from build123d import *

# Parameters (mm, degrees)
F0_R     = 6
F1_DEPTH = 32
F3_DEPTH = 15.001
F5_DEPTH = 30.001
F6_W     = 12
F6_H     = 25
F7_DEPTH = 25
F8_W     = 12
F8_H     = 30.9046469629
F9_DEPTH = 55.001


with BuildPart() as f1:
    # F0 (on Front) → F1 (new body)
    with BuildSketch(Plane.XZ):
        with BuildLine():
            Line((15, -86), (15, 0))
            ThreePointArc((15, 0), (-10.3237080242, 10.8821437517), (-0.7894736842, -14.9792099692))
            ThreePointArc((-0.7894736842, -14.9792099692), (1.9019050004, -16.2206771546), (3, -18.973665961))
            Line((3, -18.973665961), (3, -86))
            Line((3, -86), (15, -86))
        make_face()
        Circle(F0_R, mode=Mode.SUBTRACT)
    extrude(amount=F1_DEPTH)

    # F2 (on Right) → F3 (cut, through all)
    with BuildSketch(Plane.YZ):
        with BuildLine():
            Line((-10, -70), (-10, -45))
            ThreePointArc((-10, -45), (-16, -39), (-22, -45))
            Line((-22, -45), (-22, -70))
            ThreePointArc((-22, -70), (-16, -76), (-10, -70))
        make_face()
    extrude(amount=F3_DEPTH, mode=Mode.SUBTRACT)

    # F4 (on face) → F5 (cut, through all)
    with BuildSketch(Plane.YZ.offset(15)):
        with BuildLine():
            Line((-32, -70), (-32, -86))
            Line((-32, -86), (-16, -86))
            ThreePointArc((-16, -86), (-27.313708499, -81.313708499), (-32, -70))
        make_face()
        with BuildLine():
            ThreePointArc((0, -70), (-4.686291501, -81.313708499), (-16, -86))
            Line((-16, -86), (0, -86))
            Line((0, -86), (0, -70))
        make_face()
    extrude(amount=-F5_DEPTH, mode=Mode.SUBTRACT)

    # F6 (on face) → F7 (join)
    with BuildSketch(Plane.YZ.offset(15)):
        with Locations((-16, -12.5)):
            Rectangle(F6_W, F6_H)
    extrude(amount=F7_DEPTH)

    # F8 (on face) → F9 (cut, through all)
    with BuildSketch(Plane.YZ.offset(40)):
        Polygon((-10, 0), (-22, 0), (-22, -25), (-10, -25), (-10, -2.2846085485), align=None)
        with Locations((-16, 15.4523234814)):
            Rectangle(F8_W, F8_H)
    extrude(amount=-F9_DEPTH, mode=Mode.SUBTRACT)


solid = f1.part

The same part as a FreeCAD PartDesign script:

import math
import FreeCAD as App
import Part
import Sketcher
Q = App.Units.Quantity

doc = App.newDocument("Part")
params = doc.addObject("Spreadsheet::Sheet", "Params")
for row, (alias, value) in enumerate([
    ("sketch1_diameter", "12 mm"),
    ("sketch1_radius", "15 mm"),
    ("sketch1_radius2", "4 mm"),
    ("sketch1_width", "12 mm"),
    ("sketch1_height", "86 mm"),
    ("pad1_length", "32 mm"),
    ("sketch2_radius", "6 mm"),
    ("sketch2_height", "25 mm"),
    ("sketch3_radius", "16 mm"),
    ("sketch4_width", "12 mm"),
    ("sketch4_height", "25 mm"),
    ("pad2_length", "25 mm"),
    ("sketch5_width", "12 mm"),
], start=1):
    params.set(f"A{row}", alias)
    params.set(f"B{row}", "=" + value)
    params.setAlias(f"B{row}", alias)

body = doc.addObject("PartDesign::Body", "Body")

# Sketch on XZ plane
sketch1 = doc.addObject("Sketcher::SketchObject", "Sketch")
body.addObject(sketch1)
sketch1.AttachmentSupport = (doc.XZ_Plane, [""])
sketch1.MapMode = "FlatFace"
sketch1.addGeometry([
    Part.LineSegment(App.Vector(15, -86, 0), App.Vector(15, 0, 0)),  # 0
    Part.ArcOfCircle(Part.Circle(App.Vector(0, 0, 0), App.Vector(0, 0, 1), 15), math.radians(0), math.radians(267)),  # 1
    Part.ArcOfCircle(Part.Circle(App.Vector(-1, -19, 0), App.Vector(0, 0, 1), 4), math.radians(0), math.radians(87)),  # 2
    Part.LineSegment(App.Vector(3, -19, 0), App.Vector(3, -86, 0)),  # 3
    Part.LineSegment(App.Vector(3, -86, 0), App.Vector(15, -86, 0)),  # 4
    Part.Circle(App.Vector(0, 0, 0), App.Vector(0, 0, 1), 6),  # 5
], False)
sketch1.addConstraint([
    Sketcher.Constraint("Tangent", 0, 2, 1, 1),
    Sketcher.Constraint("Tangent", 1, 2, 2, 2),
    Sketcher.Constraint("Tangent", 2, 1, 3, 1),
    Sketcher.Constraint("Coincident", 3, 2, 4, 1),
    Sketcher.Constraint("Coincident", 4, 2, 0, 1),
    Sketcher.Constraint("Vertical", 0),
    Sketcher.Constraint("Vertical", 3),
    Sketcher.Constraint("Horizontal", 4),
    Sketcher.Constraint("Coincident", 1, 3, -1, 1),
    Sketcher.Constraint("Coincident", 5, 3, -1, 1),
    Sketcher.Constraint("Diameter", 5, Q("12 mm")),
    Sketcher.Constraint("Radius", 1, Q("15 mm")),
    Sketcher.Constraint("Radius", 2, Q("4 mm")),
    Sketcher.Constraint("DistanceX", 4, 1, 4, 2, Q("12 mm")),
    Sketcher.Constraint("DistanceY", 0, 1, 0, 2, Q("86 mm")),
])
sketch1.setExpression("Constraints[10]", "Params.sketch1_diameter")
sketch1.setExpression("Constraints[11]", "Params.sketch1_radius")
sketch1.setExpression("Constraints[12]", "Params.sketch1_radius2")
sketch1.setExpression("Constraints[13]", "Params.sketch1_width")
sketch1.setExpression("Constraints[14]", "Params.sketch1_height")
pad1 = doc.addObject("PartDesign::Pad", "Pad")
body.addObject(pad1)
pad1.Profile = sketch1
pad1.setExpression("Length", "Params.pad1_length")

# Sketch on YZ plane
sketch2 = doc.addObject("Sketcher::SketchObject", "Sketch001")
body.addObject(sketch2)
sketch2.AttachmentSupport = (doc.YZ_Plane, [""])
sketch2.MapMode = "FlatFace"
sketch2.addGeometry([
    Part.LineSegment(App.Vector(-10, -70, 0), App.Vector(-10, -45, 0)),
    Part.ArcOfCircle(Part.Circle(App.Vector(-16, -45, 0), App.Vector(0, 0, 1), 6), math.radians(0), math.radians(180)),
    Part.LineSegment(App.Vector(-22, -45, 0), App.Vector(-22, -70, 0)),
    Part.ArcOfCircle(Part.Circle(App.Vector(-16, -70, 0), App.Vector(0, 0, 1), 6), math.radians(180), math.radians(360)),
], False)
sketch2.addConstraint([
    Sketcher.Constraint("Tangent", 0, 2, 1, 1),
    Sketcher.Constraint("Tangent", 1, 2, 2, 1),
    Sketcher.Constraint("Tangent", 2, 2, 3, 1),
    Sketcher.Constraint("Tangent", 3, 2, 0, 1),
    Sketcher.Constraint("Vertical", 0),
    Sketcher.Constraint("Vertical", 2),
    Sketcher.Constraint("Radius", 1, Q("6 mm")),
    Sketcher.Constraint("DistanceY", 0, 1, 0, 2, Q("25 mm")),
    Sketcher.Constraint("DistanceX", 1, 3, -1, 1, Q("16 mm")),
    Sketcher.Constraint("DistanceY", 1, 3, -1, 1, Q("45 mm")),
])
sketch2.setExpression("Constraints[6]", "Params.sketch2_radius")
sketch2.setExpression("Constraints[7]", "Params.sketch2_height")
pocket1 = doc.addObject("PartDesign::Pocket", "Pocket")
body.addObject(pocket1)
pocket1.Profile = sketch2
pocket1.Type = "ThroughAll"
pocket1.Reversed = True

# Sketch on YZ plane
sketch3 = doc.addObject("Sketcher::SketchObject", "Sketch002")
body.addObject(sketch3)
sketch3.AttachmentSupport = (doc.YZ_Plane, [""])
sketch3.MapMode = "FlatFace"
sketch3.AttachmentOffset = App.Placement(App.Vector(0, 0, 15), App.Rotation())
sketch3.addGeometry([
    Part.LineSegment(App.Vector(-32, -70, 0), App.Vector(-32, -86, 0)),  # 0
    Part.LineSegment(App.Vector(-32, -86, 0), App.Vector(-16, -86, 0)),  # 1
    Part.ArcOfCircle(Part.Circle(App.Vector(-16, -70, 0), App.Vector(0, 0, 1), 16), math.radians(180), math.radians(270)),  # 2
    Part.ArcOfCircle(Part.Circle(App.Vector(-16, -70, 0), App.Vector(0, 0, 1), 16), math.radians(-90), math.radians(0)),  # 3
    Part.LineSegment(App.Vector(-16, -86, 0), App.Vector(0, -86, 0)),  # 4
    Part.LineSegment(App.Vector(0, -86, 0), App.Vector(0, -70, 0)),  # 5
], False)
sketch3.addConstraint([
    Sketcher.Constraint("Coincident", 0, 2, 1, 1),
    Sketcher.Constraint("Tangent", 1, 2, 2, 2),
    Sketcher.Constraint("Tangent", 2, 1, 0, 1),
    Sketcher.Constraint("Tangent", 3, 1, 4, 1),
    Sketcher.Constraint("Coincident", 4, 2, 5, 1),
    Sketcher.Constraint("Tangent", 5, 2, 3, 2),
    Sketcher.Constraint("Vertical", 0),
    Sketcher.Constraint("Horizontal", 1),
    Sketcher.Constraint("Horizontal", 4),
    Sketcher.Constraint("Vertical", 5),
    Sketcher.Constraint("Coincident", 3, 3, 2, 3),
    Sketcher.Constraint("Equal", 2, 3),
    Sketcher.Constraint("PointOnObject", 4, 2, -2),
    Sketcher.Constraint("Radius", 2, Q("16 mm")),
    Sketcher.Constraint("DistanceY", 2, 3, -1, 1, Q("70 mm")),
])
sketch3.setExpression("Constraints[13]", "Params.sketch3_radius")
pocket2 = doc.addObject("PartDesign::Pocket", "Pocket001")
body.addObject(pocket2)
pocket2.Profile = sketch3
pocket2.Type = "ThroughAll"

# Sketch on YZ plane
sketch4 = doc.addObject("Sketcher::SketchObject", "Sketch003")
body.addObject(sketch4)
sketch4.AttachmentSupport = (doc.YZ_Plane, [""])
sketch4.MapMode = "FlatFace"
sketch4.AttachmentOffset = App.Placement(App.Vector(0, 0, 15), App.Rotation())
sketch4.addGeometry([
    Part.LineSegment(App.Vector(-22, 0, 0), App.Vector(-22, -25, 0)),
    Part.LineSegment(App.Vector(-22, -25, 0), App.Vector(-10, -25, 0)),
    Part.LineSegment(App.Vector(-10, -25, 0), App.Vector(-10, 0, 0)),
    Part.LineSegment(App.Vector(-10, 0, 0), App.Vector(-22, 0, 0)),
], False)
sketch4.addConstraint([
    Sketcher.Constraint("Coincident", 0, 2, 1, 1),
    Sketcher.Constraint("Coincident", 1, 2, 2, 1),
    Sketcher.Constraint("Coincident", 2, 2, 3, 1),
    Sketcher.Constraint("Coincident", 3, 2, 0, 1),
    Sketcher.Constraint("Vertical", 0),
    Sketcher.Constraint("Horizontal", 1),
    Sketcher.Constraint("Vertical", 2),
    Sketcher.Constraint("Horizontal", 3),
    Sketcher.Constraint("PointOnObject", 2, 2, -1),
    Sketcher.Constraint("DistanceX", 1, 1, 1, 2, Q("12 mm")),
    Sketcher.Constraint("DistanceY", 0, 2, 0, 1, Q("25 mm")),
    Sketcher.Constraint("DistanceX", 0, 2, -1, 1, Q("22 mm")),
])
sketch4.setExpression("Constraints[9]", "Params.sketch4_width")
sketch4.setExpression("Constraints[10]", "Params.sketch4_height")
pad2 = doc.addObject("PartDesign::Pad", "Pad001")
body.addObject(pad2)
pad2.Profile = sketch4
pad2.setExpression("Length", "Params.pad2_length")

# Sketch on YZ plane
sketch5 = doc.addObject("Sketcher::SketchObject", "Sketch004")
body.addObject(sketch5)
sketch5.AttachmentSupport = (doc.YZ_Plane, [""])
sketch5.MapMode = "FlatFace"
sketch5.AttachmentOffset = App.Placement(App.Vector(0, 0, 40), App.Rotation())
sketch5.addGeometry([
    Part.LineSegment(App.Vector(-22, -25, 0), App.Vector(-10, -25, 0)),
    Part.LineSegment(App.Vector(-10, -25, 0), App.Vector(-10, 31, 0)),
    Part.LineSegment(App.Vector(-10, 31, 0), App.Vector(-22, 31, 0)),
    Part.LineSegment(App.Vector(-22, 31, 0), App.Vector(-22, -25, 0)),
], False)
sketch5.addConstraint([
    Sketcher.Constraint("Coincident", 0, 2, 1, 1),
    Sketcher.Constraint("Coincident", 1, 2, 2, 1),
    Sketcher.Constraint("Coincident", 2, 2, 3, 1),
    Sketcher.Constraint("Coincident", 3, 2, 0, 1),
    Sketcher.Constraint("Horizontal", 0),
    Sketcher.Constraint("Vertical", 1),
    Sketcher.Constraint("Horizontal", 2),
    Sketcher.Constraint("Vertical", 3),
    Sketcher.Constraint("DistanceX", 0, 1, 0, 2, Q("12 mm")),
    Sketcher.Constraint("DistanceX", 0, 2, -1, 1, Q("10 mm")),
    Sketcher.Constraint("DistanceY", 0, 2, -1, 1, Q("25 mm")),
    Sketcher.Constraint("DistanceY", 1, 1, 1, 2, Q("55.904647 mm")),
])
sketch5.setExpression("Constraints[8]", "Params.sketch5_width")
pocket3 = doc.addObject("PartDesign::Pocket", "Pocket002")
body.addObject(pocket3)
pocket3.Profile = sketch5
pocket3.Type = "ThroughAll"

doc.recompute()
